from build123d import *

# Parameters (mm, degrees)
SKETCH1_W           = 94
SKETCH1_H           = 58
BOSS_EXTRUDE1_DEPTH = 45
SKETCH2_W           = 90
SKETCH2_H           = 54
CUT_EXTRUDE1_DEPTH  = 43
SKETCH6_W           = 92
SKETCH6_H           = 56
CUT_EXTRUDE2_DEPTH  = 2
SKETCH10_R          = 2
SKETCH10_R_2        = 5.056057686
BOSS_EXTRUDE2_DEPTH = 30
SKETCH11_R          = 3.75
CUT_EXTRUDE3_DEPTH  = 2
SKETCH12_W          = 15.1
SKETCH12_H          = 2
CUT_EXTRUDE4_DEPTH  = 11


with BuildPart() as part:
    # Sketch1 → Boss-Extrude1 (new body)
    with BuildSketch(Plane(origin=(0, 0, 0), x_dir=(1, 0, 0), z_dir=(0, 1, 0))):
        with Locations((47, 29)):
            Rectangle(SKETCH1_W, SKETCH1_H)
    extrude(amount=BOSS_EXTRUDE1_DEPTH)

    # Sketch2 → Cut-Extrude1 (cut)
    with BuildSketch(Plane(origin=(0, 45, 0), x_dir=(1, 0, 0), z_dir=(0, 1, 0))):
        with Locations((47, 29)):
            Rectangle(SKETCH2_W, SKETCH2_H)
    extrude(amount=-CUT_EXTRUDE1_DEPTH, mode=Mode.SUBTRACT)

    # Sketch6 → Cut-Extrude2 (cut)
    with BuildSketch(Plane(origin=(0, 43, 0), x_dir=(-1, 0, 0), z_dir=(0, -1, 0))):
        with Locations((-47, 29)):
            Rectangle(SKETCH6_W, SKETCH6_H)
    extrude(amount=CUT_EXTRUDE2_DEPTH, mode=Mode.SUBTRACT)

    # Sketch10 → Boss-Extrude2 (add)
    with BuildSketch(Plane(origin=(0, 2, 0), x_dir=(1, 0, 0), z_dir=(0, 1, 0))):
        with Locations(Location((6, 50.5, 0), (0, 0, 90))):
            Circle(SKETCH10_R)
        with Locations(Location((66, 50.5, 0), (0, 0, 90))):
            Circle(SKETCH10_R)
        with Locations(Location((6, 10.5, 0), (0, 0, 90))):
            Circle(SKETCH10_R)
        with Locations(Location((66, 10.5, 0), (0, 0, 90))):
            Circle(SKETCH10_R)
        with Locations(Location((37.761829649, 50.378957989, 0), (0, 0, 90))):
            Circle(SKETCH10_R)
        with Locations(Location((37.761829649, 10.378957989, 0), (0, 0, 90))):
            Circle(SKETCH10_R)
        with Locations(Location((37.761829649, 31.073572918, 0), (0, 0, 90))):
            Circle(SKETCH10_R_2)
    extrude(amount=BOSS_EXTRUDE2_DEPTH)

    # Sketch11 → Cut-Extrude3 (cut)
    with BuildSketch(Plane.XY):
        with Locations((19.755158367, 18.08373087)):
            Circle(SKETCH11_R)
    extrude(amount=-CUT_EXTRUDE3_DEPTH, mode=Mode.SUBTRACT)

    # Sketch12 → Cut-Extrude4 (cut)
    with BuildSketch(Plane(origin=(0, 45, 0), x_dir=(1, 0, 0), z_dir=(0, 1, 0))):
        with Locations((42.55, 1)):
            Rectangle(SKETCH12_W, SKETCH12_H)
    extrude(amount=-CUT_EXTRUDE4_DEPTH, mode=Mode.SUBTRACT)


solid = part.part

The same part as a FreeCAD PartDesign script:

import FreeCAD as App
import Part
import Sketcher
from FreeCAD import Vector


def add_polygon(sketch, points):
    """Adds a closed chain of lines whose ends are joined by coincident constraints."""
    first, n = sketch.GeometryCount, len(points)
    for a, b in zip(points, points[1:] + points[:1]):
        sketch.addGeometry(Part.LineSegment(App.Vector(*a, 0), App.Vector(*b, 0)), False)
    for i in range(n):
        sketch.addConstraint(Sketcher.Constraint("Coincident", first + i, 2, first + (i + 1) % n, 1))

doc = App.newDocument("Part")
params = doc.addObject("Spreadsheet::Sheet", "Params")
for row, (alias, value) in enumerate([
    ("sketch1_width", "94 mm"),
    ("sketch1_height", "58 mm"),
    ("pad1_length", "45 mm"),
    ("sketch2_width", "90 mm"),
    ("sketch2_height", "54 mm"),
    ("pocket1_length", "43 mm"),
    ("sketch3_width", "92 mm"),
    ("sketch3_height", "56 mm"),
    ("pocket2_length", "2 mm"),
    ("sketch4_diameter", "4 mm"),
    ("pad2_length", "30 mm"),
    ("sketch5_diameter", "7.5 mm"),
    ("pocket3_length", "2 mm"),
    ("sketch6_height", "2 mm"),
    ("sketch6_width", "15.1 mm"),
    ("pocket4_length", "11 mm"),
], start=1):
    params.set(f"A{row}", alias)
    params.set(f"B{row}", "=" + value)
    params.setAlias(f"B{row}", alias)

body = doc.addObject("PartDesign::Body", "Body")

# Sketch on XZ plane
sketch1 = body.newObject("Sketcher::SketchObject", "Sketch")
sketch1.AttachmentSupport = (doc.getObject("XZ_Plane"), [""])
sketch1.MapMode = "FlatFace"
add_polygon(sketch1, [(0, -58), (0, 0), (94, 0), (94, -58)])  # lines 0-3
sketch1.addConstraint([
    Sketcher.Constraint("Vertical", 0),
    Sketcher.Constraint("Horizontal", 1),
    Sketcher.Constraint("Vertical", 2),
    Sketcher.Constraint("Horizontal", 3),
    Sketcher.Constraint("Coincident", 0, 2, -1, 1),
    Sketcher.Constraint("DistanceX", 1, 1, 1, 2, 94.0),
    Sketcher.Constraint("DistanceY", 0, 1, 0, 2, 58.0),
])
sketch1.setExpression("Constraints[9]", "Params.sketch1_width")
sketch1.setExpression("Constraints[10]", "Params.sketch1_height")
pad1 = body.newObject("PartDesign::Pad", "Pad")
pad1.Profile = sketch1
pad1.setExpression("Length", "Params.pad1_length")
pad1.Reversed = True

# Sketch on XZ plane
sketch2 = body.newObject("Sketcher::SketchObject", "Sketch001")
sketch2.AttachmentSupport = (doc.getObject("XZ_Plane"), [""])
sketch2.MapMode = "FlatFace"
sketch2.AttachmentOffset = App.Placement(Vector(0, 0, -45), App.Rotation())
add_polygon(sketch2, [(2, -56), (2, -2), (92, -2), (92, -56)])  # lines 0-3
sketch2.addConstraint([
    Sketcher.Constraint("Vertical", 0),
    Sketcher.Constraint("Horizontal", 1),
    Sketcher.Constraint("Vertical", 2),
    Sketcher.Constraint("Horizontal", 3),
    Sketcher.Constraint("DistanceX", 1, 1, 1, 2, 90.0),
    Sketcher.Constraint("DistanceY", 0, 1, 0, 2, 54.0),
    Sketcher.Constraint("DistanceX", -1, 1, 0, 2, 2.0),
    Sketcher.Constraint("DistanceY", 0, 2, -1, 1, 2.0),
])
sketch2.setExpression("Constraints[8]", "Params.sketch2_width")
sketch2.setExpression("Constraints[9]", "Params.sketch2_height")
pocket1 = body.newObject("PartDesign::Pocket", "Pocket")
pocket1.Profile = sketch2
pocket1.setExpression("Length", "Params.pocket1_length")
pocket1.Reversed = True

# Sketch on XZ plane
sketch3 = body.newObject("Sketcher::SketchObject", "Sketch002")
sketch3.AttachmentSupport = (doc.getObject("XZ_Plane"), [""])
sketch3.MapMode = "FlatFace"
sketch3.AttachmentOffset = App.Placement(Vector(0, 0, -43), App.Rotation())
add_polygon(sketch3, [(93, -57), (93, -1), (1, -1), (1, -57)])  # lines 0-3
sketch3.addConstraint([
    Sketcher.Constraint("Vertical", 0),
    Sketcher.Constraint("Horizontal", 1),
    Sketcher.Constraint("Vertical", 2),
    Sketcher.Constraint("Horizontal", 3),
    Sketcher.Constraint("DistanceX", 1, 2, 1, 1, 92.0),
    Sketcher.Constraint("DistanceY", 0, 1, 0, 2, 56.0),
    Sketcher.Constraint("DistanceX", -1, 1, 0, 2, 93.0),
    Sketcher.Constraint("DistanceY", 0, 2, -1, 1, 1.0),
])
sketch3.setExpression("Constraints[8]", "Params.sketch3_width")
sketch3.setExpression("Constraints[9]", "Params.sketch3_height")
pocket2 = body.newObject("PartDesign::Pocket", "Pocket001")
pocket2.Profile = sketch3
pocket2.setExpression("Length", "Params.pocket2_length")
pocket2.Reversed = True

# Sketch on XZ plane
sketch4 = body.newObject("Sketcher::SketchObject", "Sketch003")
sketch4.AttachmentSupport = (doc.getObject("XZ_Plane"), [""])
sketch4.MapMode = "FlatFace"
sketch4.AttachmentOffset = App.Placement(Vector(0, 0, -2), App.Rotation())
sketch4.addGeometry([
    Part.Circle(Vector(6, -50.5, 0), Vector(0, 0, 1), 2),  # 0
    Part.Circle(Vector(66, -50.5, 0), Vector(0, 0, 1), 2),  # 1
    Part.Circle(Vector(6, -10.5, 0), Vector(0, 0, 1), 2),  # 2
    Part.Circle(Vector(66, -10.5, 0), Vector(0, 0, 1), 2),  # 3
    Part.Circle(Vector(37.8, -50.4, 0), Vector(0, 0, 1), 2),  # 4
    Part.Circle(Vector(37.8, -10.4, 0), Vector(0, 0, 1), 2),  # 5
    Part.Circle(Vector(37.8, -31.1, 0), Vector(0, 0, 1), 5.1),  # 6
], False)
sketch4.addConstraint([
    Sketcher.Constraint("Equal", 0, 1),
    Sketcher.Constraint("Equal", 1, 2),
    Sketcher.Constraint("Equal", 2, 3),
    Sketcher.Constraint("Equal", 3, 4),
    Sketcher.Constraint("Equal", 4, 5),
    Sketcher.Constraint("Horizontal", 0, 3, 1, 3),
    Sketcher.Constraint("Horizontal", 2, 3, 3, 3),
    Sketcher.Constraint("Vertical", 0, 3, 2, 3),
    Sketcher.Constraint("Vertical", 1, 3, 3, 3),
    Sketcher.Constraint("Vertical", 4, 3, 5, 3),
    Sketcher.Constraint("Vertical", 5, 3, 6, 3),
    Sketcher.Constraint("Diameter", 0, 4.0),
    Sketcher.Constraint("DistanceX", -1, 1, 0, 3, 6.0),
    Sketcher.Constraint("DistanceX", -1, 1, 1, 3, 66.0),
    Sketcher.Constraint("DistanceY", 0, 3, 2, 3, 40.0),
    Sketcher.Constraint("DistanceY", 4, 3, 5, 3, 40.0),
    Sketcher.Constraint("DistanceY", 0, 3, -1, 1, 50.5),
    Sketcher.Constraint("Diameter", 6, 10.112115),
    Sketcher.Constraint("DistanceX", -1, 1, 4, 3, 37.76183),
    Sketcher.Constraint("DistanceY", 4, 3, -1, 1, 50.378958),
    Sketcher.Constraint("DistanceY", 6, 3, -1, 1, 31.073573),
])
sketch4.setExpression("Constraints[11]", "Params.sketch4_diameter")
pad2 = body.newObject("PartDesign::Pad", "Pad001")
pad2.Profile = sketch4
pad2.setExpression("Length", "Params.pad2_length")
pad2.Reversed = True

# Sketch on XY plane
sketch5 = body.newObject("Sketcher::SketchObject", "Sketch004")
sketch5.AttachmentSupport = (doc.getObject("XY_Plane"), [""])
sketch5.MapMode = "FlatFace"
sketch5.addGeometry(Part.Circle(Vector(19.8, 18.1, 0), Vector(0, 0, 1), 3.8), False)
sketch5.addConstraint([
    Sketcher.Constraint("Diameter", 0, 7.5),
    Sketcher.Constraint("DistanceX", -1, 1, 0, 3, 19.755158),
    Sketcher.Constraint("DistanceY", -1, 1, 0, 3, 18.083731),
])
sketch5.setExpression("Constraints[0]", "Params.sketch5_diameter")
pocket3 = body.newObject("PartDesign::Pocket", "Pocket002")
pocket3.Profile = sketch5
pocket3.setExpression("Length", "Params.pocket3_length")

# Sketch on XZ plane
sketch6 = body.newObject("Sketcher::SketchObject", "Sketch005")
sketch6.AttachmentSupport = (doc.getObject("XZ_Plane"), [""])
sketch6.MapMode = "FlatFace"
sketch6.AttachmentOffset = App.Placement(Vector(0, 0, -45), App.Rotation())
add_polygon(sketch6, [(35, -2), (35, 0), (50.1, 0), (50.1, -2)])  # lines 0-3
sketch6.addConstraint([
    Sketcher.Constraint("Vertical", 0),
    Sketcher.Constraint("Horizontal", 1),
    Sketcher.Constraint("Vertical", 2),
    Sketcher.Constraint("Horizontal", 3),
    Sketcher.Constraint("PointOnObject", 0, 2, -1),
    Sketcher.Constraint("DistanceY", 0, 1, 0, 2, 2.0),
    Sketcher.Constraint("DistanceX", 1, 1, 1, 2, 15.1),
    Sketcher.Constraint("DistanceX", -1, 1, 0, 2, 35.0),
])
sketch6.setExpression("Constraints[9]", "Params.sketch6_height")
sketch6.setExpression("Constraints[10]", "Params.sketch6_width")
pocket4 = body.newObject("PartDesign::Pocket", "Pocket003")
pocket4.Profile = sketch6
pocket4.setExpression("Length", "Params.pocket4_length")
pocket4.Reversed = True

doc.recompute()
